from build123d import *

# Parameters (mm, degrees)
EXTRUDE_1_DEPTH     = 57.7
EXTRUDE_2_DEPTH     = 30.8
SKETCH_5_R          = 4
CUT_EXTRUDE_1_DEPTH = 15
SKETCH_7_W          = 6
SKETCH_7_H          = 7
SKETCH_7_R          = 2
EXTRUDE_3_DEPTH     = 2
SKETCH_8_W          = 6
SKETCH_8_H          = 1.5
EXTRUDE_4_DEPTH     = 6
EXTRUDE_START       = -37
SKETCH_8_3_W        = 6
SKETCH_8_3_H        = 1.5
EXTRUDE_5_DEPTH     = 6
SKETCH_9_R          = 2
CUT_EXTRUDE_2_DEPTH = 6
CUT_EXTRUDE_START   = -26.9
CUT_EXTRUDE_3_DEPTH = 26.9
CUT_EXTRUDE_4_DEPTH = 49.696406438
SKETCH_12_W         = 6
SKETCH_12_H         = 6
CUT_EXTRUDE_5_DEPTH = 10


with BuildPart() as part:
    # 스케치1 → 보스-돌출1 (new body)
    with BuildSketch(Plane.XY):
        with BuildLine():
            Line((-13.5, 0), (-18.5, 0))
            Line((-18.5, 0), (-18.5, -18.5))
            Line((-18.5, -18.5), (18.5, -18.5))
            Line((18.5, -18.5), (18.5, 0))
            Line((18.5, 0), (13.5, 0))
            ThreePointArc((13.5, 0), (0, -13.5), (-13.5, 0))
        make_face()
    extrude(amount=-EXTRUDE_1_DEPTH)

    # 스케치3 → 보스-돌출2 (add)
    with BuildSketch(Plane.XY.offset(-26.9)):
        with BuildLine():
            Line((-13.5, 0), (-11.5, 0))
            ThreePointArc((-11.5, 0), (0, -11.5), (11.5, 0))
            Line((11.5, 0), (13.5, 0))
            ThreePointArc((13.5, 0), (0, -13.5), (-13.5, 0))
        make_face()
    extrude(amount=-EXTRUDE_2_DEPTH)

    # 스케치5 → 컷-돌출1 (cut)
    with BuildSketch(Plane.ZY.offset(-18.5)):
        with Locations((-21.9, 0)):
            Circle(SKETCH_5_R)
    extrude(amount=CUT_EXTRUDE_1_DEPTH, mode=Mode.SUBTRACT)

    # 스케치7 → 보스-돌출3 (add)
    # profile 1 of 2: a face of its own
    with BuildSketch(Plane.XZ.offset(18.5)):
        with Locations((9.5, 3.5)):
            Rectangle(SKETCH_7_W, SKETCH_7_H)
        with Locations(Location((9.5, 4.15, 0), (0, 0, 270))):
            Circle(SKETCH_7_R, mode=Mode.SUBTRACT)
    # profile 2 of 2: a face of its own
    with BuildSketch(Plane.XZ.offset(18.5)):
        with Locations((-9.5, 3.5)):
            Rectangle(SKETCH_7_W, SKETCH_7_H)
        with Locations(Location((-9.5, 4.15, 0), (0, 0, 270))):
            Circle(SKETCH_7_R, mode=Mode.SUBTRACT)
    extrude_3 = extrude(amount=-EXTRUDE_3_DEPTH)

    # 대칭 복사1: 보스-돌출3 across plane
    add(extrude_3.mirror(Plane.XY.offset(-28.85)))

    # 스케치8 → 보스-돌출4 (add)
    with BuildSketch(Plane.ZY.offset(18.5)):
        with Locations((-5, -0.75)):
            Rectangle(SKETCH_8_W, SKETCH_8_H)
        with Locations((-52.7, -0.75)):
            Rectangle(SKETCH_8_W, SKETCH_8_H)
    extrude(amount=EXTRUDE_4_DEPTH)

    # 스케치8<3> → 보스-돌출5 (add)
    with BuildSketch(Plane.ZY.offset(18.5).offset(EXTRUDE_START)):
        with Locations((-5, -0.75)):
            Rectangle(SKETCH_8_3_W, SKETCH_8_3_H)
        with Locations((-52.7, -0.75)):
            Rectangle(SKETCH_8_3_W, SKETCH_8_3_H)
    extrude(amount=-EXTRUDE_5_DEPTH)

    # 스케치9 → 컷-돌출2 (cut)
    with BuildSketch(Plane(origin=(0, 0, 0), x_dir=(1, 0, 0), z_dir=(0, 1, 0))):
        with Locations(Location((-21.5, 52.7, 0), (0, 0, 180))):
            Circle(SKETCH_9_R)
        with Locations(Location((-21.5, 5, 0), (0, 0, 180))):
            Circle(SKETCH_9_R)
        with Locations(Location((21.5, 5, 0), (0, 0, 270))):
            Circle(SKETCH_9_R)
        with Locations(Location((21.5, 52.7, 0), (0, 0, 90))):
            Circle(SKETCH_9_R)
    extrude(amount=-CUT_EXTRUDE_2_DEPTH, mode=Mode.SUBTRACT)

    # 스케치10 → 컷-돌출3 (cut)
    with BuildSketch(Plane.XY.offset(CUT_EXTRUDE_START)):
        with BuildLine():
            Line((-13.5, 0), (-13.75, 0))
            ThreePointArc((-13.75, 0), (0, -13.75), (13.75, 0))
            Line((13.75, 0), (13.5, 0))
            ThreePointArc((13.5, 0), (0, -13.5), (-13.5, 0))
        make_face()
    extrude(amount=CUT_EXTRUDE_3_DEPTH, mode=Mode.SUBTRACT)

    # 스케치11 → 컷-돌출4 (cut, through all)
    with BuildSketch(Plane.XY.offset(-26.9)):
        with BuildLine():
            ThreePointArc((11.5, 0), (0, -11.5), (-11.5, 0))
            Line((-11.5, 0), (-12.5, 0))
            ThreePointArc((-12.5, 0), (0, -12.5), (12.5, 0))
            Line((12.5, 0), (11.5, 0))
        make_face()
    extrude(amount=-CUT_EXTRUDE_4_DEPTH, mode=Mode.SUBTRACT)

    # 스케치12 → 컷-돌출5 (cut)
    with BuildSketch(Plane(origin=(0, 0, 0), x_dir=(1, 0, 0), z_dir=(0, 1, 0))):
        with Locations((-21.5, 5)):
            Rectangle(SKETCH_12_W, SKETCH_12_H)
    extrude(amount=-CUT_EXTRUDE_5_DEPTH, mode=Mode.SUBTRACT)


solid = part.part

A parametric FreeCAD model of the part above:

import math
import FreeCAD as App
import Part
import Sketcher
Q = App.Units.Quantity


def add_polygon(sketch, points):
    """Adds a closed chain of lines whose ends are joined by coincident constraints."""
    first, n = sketch.GeometryCount, len(points)
    for a, b in zip(points, points[1:] + points[:1]):
        sketch.addGeometry(Part.LineSegment(App.Vector(*a, 0), App.Vector(*b, 0)), False)
    for i in range(n):
        sketch.addConstraint(Sketcher.Constraint("Coincident", first + i, 2, first + (i + 1) % n, 1))

doc = App.newDocument("Part")
body = doc.addObject("PartDesign::Body", "Body")

# Sketch on XY plane
sketch1 = doc.addObject("Sketcher::SketchObject", "Sketch")
body.addObject(sketch1)
sketch1.AttachmentSupport = (doc.XY_Plane, [""])
sketch1.MapMode = "FlatFace"
sketch1.addGeometry([
    Part.LineSegment(App.Vector(-14, 0, 0), App.Vector(-18, 0, 0)),  # 0
    Part.LineSegment(App.Vector(-18, 0, 0), App.Vector(-18, -18, 0)),  # 1
    Part.LineSegment(App.Vector(-18, -18, 0), App.Vector(18, -18, 0)),  # 2
    Part.LineSegment(App.Vector(18, -18, 0), App.Vector(18, 0, 0)),  # 3
    Part.LineSegment(App.Vector(18, 0, 0), App.Vector(14, 0, 0)),  # 4
    Part.ArcOfCircle(Part.Circle(App.Vector(0, 0, 0), App.Vector(0, 0, 1), 14), math.radians(180), math.radians(360)),  # 5
], False)
sketch1.addConstraint([
    Sketcher.Constraint("Coincident", 0, 2, 1, 1),
    Sketcher.Constraint("Coincident", 1, 2, 2, 1),
    Sketcher.Constraint("Coincident", 2, 2, 3, 1),
    Sketcher.Constraint("Coincident", 3, 2, 4, 1),
    Sketcher.Constraint("Coincident", 4, 2, 5, 2),
    Sketcher.Constraint("Coincident", 5, 1, 0, 1),
    Sketcher.Constraint("Horizontal", 0),
    Sketcher.Constraint("Vertical", 1),
    Sketcher.Constraint("Horizontal", 2),
    Sketcher.Constraint("Vertical", 3),
    Sketcher.Constraint("Horizontal", 4),
    Sketcher.Constraint("Coincident", 5, 3, -1, 1),
    Sketcher.Constraint("Symmetric", 0, 2, 3, 2, -1, 1),
    Sketcher.Constraint("PointOnObject", 0, 2, -1),
    Sketcher.Constraint("Radius", 5, Q("13.5 mm")),
    Sketcher.Constraint("DistanceX", 0, 2, 0, 1, Q("5 mm")),
    Sketcher.Constraint("DistanceY", 1, 2, 1, 1, Q("18.5 mm")),
])
pad1 = doc.addObject("PartDesign::Pad", "Pad")
body.addObject(pad1)
pad1.Profile = sketch1
pad1.Length = 57.7
pad1.Reversed = True

# Sketch on XY plane
sketch2 = doc.addObject("Sketcher::SketchObject", "Sketch001")
body.addObject(sketch2)
sketch2.AttachmentSupport = (doc.XY_Plane, [""])
sketch2.MapMode = "FlatFace"
sketch2.AttachmentOffset = App.Placement(App.Vector(0, 0, -26.9), App.Rotation())
sketch2.addGeometry([
    Part.LineSegment(App.Vector(-11.5, 0, 0), App.Vector(-13.5, 0, 0)),
    Part.ArcOfCircle(Part.Circle(App.Vector(0, 0, 0), App.Vector(0, 0, 1), 13.5), math.radians(180), math.radians(360)),
    Part.LineSegment(App.Vector(13.5, 0, 0), App.Vector(11.5, 0, 0)),
    Part.ArcOfCircle(Part.Circle(App.Vector(0, 0, 0), App.Vector(0, 0, 1), 11.5), math.radians(180), math.radians(360)),
], False)
sketch2.addConstraint([
    Sketcher.Constraint("Coincident", 0, 2, 1, 1),
    Sketcher.Constraint("Coincident", 1, 2, 2, 1),
    Sketcher.Constraint("Coincident", 2, 2, 3, 2),
    Sketcher.Constraint("Coincident", 3, 1, 0, 1),
    Sketcher.Constraint("Horizontal", 0),
    Sketcher.Constraint("Horizontal", 2),
    Sketcher.Constraint("Coincident", 1, 3, -1, 1),
    Sketcher.Constraint("Coincident", 3, 3, -1, 1),
    Sketcher.Constraint("PointOnObject", 0, 2, -1),
    Sketcher.Constraint("PointOnObject", 1, 2, -1),
    Sketcher.Constraint("Radius", 1, Q("13.5 mm")),
    Sketcher.Constraint("Radius", 3, Q("11.5 mm")),
])
pad2 = doc.addObject("PartDesign::Pad", "Pad001")
body.addObject(pad2)
pad2.Profile = sketch2
pad2.Length = 30.8
pad2.Reversed = True

# Sketch on YZ plane
sketch3 = doc.addObject("Sketcher::SketchObject", "Sketch002")
body.addObject(sketch3)
sketch3.AttachmentSupport = (doc.YZ_Plane, [""])
sketch3.MapMode = "FlatFace"
sketch3.AttachmentOffset = App.Placement(App.Vector(0, 0, 18.5), App.Rotation())
sketch3.addGeometry(Part.Circle(App.Vector(0, -21.9, 0), App.Vector(0, 0, 1), 4), False)
sketch3.addConstraint([
    Sketcher.Constraint("PointOnObject", 0, 3, -2),
    Sketcher.Constraint("Diameter", 0, Q("8 mm")),
    Sketcher.Constraint("DistanceY", 0, 3, -1, 1, Q("21.9 mm")),
])
pocket1 = doc.addObject("PartDesign::Pocket", "Pocket")
body.addObject(pocket1)
pocket1.Profile = sketch3
pocket1.Length = 15

# Sketch on XZ plane
sketch4 = doc.addObject("Sketcher::SketchObject", "Sketch003")
body.addObject(sketch4)
sketch4.AttachmentSupport = (doc.XZ_Plane, [""])
sketch4.MapMode = "FlatFace"
sketch4.AttachmentOffset = App.Placement(App.Vector(0, 0, 18.5), App.Rotation())
add_polygon(sketch4, [(6.5, 7), (6.5, 0), (12.5, 0), (12.5, 7)])  # lines 0-3
sketch4.addGeometry(Part.Circle(App.Vector(9.5, 4.2, 0), App.Vector(0, 0, 1), 2), False)  # 4
add_polygon(sketch4, [(-12.5, 7), (-12.5, 0), (-6.5, 0), (-6.5, 7)])  # lines 5-8
sketch4.addGeometry(Part.Circle(App.Vector(-9.5, 4.2, 0), App.Vector(0, 0, 1), 2), False)  # 9
sketch4.addConstraint([
    Sketcher.Constraint("Vertical", 0),
    Sketcher.Constraint("Horizontal", 1),
    Sketcher.Constraint("Vertical", 2),
    Sketcher.Constraint("Horizontal", 3),
    Sketcher.Constraint("Vertical", 5),
    Sketcher.Constraint("Horizontal", 6),
    Sketcher.Constraint("Vertical", 7),
    Sketcher.Constraint("Horizontal", 8),
    Sketcher.Constraint("Equal", 4, 9),
    Sketcher.Constraint("Symmetric", 1, 2, 5, 2, -1, 1),
    Sketcher.Constraint("Symmetric", 4, 3, 9, 3, -2),
    Sketcher.Constraint("Symmetric", 0, 2, 6, 2, -2),
    Sketcher.Constraint("Horizontal", 3, 2, 7, 2),
    Sketcher.Constraint("Diameter", 4, Q("4 mm")),
    Sketcher.Constraint("DistanceX", 1, 1, 1, 2, Q("6 mm")),
    Sketcher.Constraint("DistanceY", 0, 2, 0, 1, Q("7 mm")),
    Sketcher.Constraint("DistanceX", 9, 3, 4, 3, Q("19 mm")),
    Sketcher.Constraint("DistanceX", 0, 2, 4, 3, Q("3 mm")),
    Sketcher.Constraint("DistanceY", -1, 1, 4, 3, Q("4.15 mm")),
])
pad3 = doc.addObject("PartDesign::Pad", "Pad002")
body.addObject(pad3)
pad3.Profile = sketch4
pad3.Length = 2
pad3.Reversed = True
doc.recompute()

datumplane = doc.addObject("PartDesign::Plane", "DatumPlane")
body.addObject(datumplane)
datumplane.AttachmentSupport = (doc.XY_Plane, [""])
datumplane.MapMode = "FlatFace"
datumplane.AttachmentOffset = App.Placement(App.Vector(0, 0, -28.85), App.Rotation())
mirrored = doc.addObject("PartDesign::Mirrored", "Mirrored")
body.addObject(mirrored)
mirrored.Originals = [pad3]
mirrored.MirrorPlane = (datumplane, [""])
body.Tip = mirrored

# Sketch on YZ plane
sketch5 = doc.addObject("Sketcher::SketchObject", "Sketch004")
body.addObject(sketch5)
sketch5.AttachmentSupport = (doc.YZ_Plane, [""])
sketch5.MapMode = "FlatFace"
sketch5.AttachmentOffset = App.Placement(App.Vector(0, 0, -18.5), App.Rotation())
add_polygon(sketch5, [(0, -8), (-1.5, -8), (-1.5, -2), (0, -2)])  # lines 0-3
add_polygon(sketch5, [(0, -55.7), (-1.5, -55.7), (-1.5, -49.7), (0, -49.7)])  # lines 4-7
sketch5.addConstraint([
    Sketcher.Constraint("Horizontal", 0),
    Sketcher.Constraint("Vertical", 1),
    Sketcher.Constraint("Horizontal", 2),
    Sketcher.Constraint("Vertical", 3),
    Sketcher.Constraint("Horizontal", 4),
    Sketcher.Constraint("Vertical", 5),
    Sketcher.Constraint("Horizontal", 6),
    Sketcher.Constraint("Vertical", 7),
    Sketcher.Constraint("PointOnObject", 2, 2, -2),
    Sketcher.Constraint("PointOnObject", 6, 2, -2),
    Sketcher.Constraint("Vertical", 1, 2, 4, 2),
    Sketcher.Constraint("Equal", 3, 5),
    Sketcher.Constraint("DistanceY", 1, 1, 1, 2, Q("6 mm")),
    Sketcher.Constraint("DistanceX", 0, 2, 0, 1, Q("1.5 mm")),
    Sketcher.Constraint("DistanceY", 0, 2, -1, 1, Q("8 mm")),
    Sketcher.Constraint("DistanceY", 4, 2, -1, 1, Q("55.7 mm")),
])
pad4 = doc.addObject("PartDesign::Pad", "Pad003")
body.addObject(pad4)
pad4.Profile = sketch5
pad4.Length = 6
pad4.Reversed = True

# Sketch on YZ plane
sketch6 = doc.addObject("Sketcher::SketchObject", "Sketch005")
body.addObject(sketch6)
sketch6.AttachmentSupport = (doc.YZ_Plane, [""])
sketch6.MapMode = "FlatFace"
sketch6.AttachmentOffset = App.Placement(App.Vector(0, 0, 18.5), App.Rotation())
add_polygon(sketch6, [(0, -8), (-1.5, -8), (-1.5, -2), (0, -2)])  # lines 0-3
add_polygon(sketch6, [(0, -55.7), (-1.5, -55.7), (-1.5, -49.7), (0, -49.7)])  # lines 4-7
sketch6.addConstraint([
    Sketcher.Constraint("Horizontal", 0),
    Sketcher.Constraint("Vertical", 1),
    Sketcher.Constraint("Horizontal", 2),
    Sketcher.Constraint("Vertical", 3),
    Sketcher.Constraint("Horizontal", 4),
    Sketcher.Constraint("Vertical", 5),
    Sketcher.Constraint("Horizontal", 6),
    Sketcher.Constraint("Vertical", 7),
    Sketcher.Constraint("PointOnObject", 2, 2, -2),
    Sketcher.Constraint("PointOnObject", 6, 2, -2),
    Sketcher.Constraint("Vertical", 1, 2, 4, 2),
    Sketcher.Constraint("Equal", 3, 5),
    Sketcher.Constraint("DistanceY", 1, 1, 1, 2, Q("6 mm")),
    Sketcher.Constraint("DistanceX", 0, 2, 0, 1, Q("1.5 mm")),
    Sketcher.Constraint("DistanceY", 0, 2, -1, 1, Q("8 mm")),
    Sketcher.Constraint("DistanceY", 4, 2, -1, 1, Q("55.7 mm")),
])
pad5 = doc.addObject("PartDesign::Pad", "Pad004")
body.addObject(pad5)
pad5.Profile = sketch6
pad5.Length = 6

# Sketch on XZ plane
sketch7 = doc.addObject("Sketcher::SketchObject", "Sketch006")
body.addObject(sketch7)
sketch7.AttachmentSupport = (doc.XZ_Plane, [""])
sketch7.MapMode = "FlatFace"
sketch7.addGeometry([
    Part.Circle(App.Vector(-21.5, -52.7, 0), App.Vector(0, 0, 1), 2),
    Part.Circle(App.Vector(-21.5, -5, 0), App.Vector(0, 0, 1), 2),
    Part.Circle(App.Vector(21.5, -5, 0), App.Vector(0, 0, 1), 2),
    Part.Circle(App.Vector(21.5, -52.7, 0), App.Vector(0, 0, 1), 2),
], False)
sketch7.addConstraint([
    Sketcher.Constraint("Equal", 0, 1),
    Sketcher.Constraint("Equal", 1, 2),
    Sketcher.Constraint("Equal", 2, 3),
    Sketcher.Constraint("Symmetric", 1, 3, 2, 3, -2),
    Sketcher.Constraint("Symmetric", 0, 3, 3, 3, -2),
    Sketcher.Constraint("Vertical", 0, 3, 1, 3),
    Sketcher.Constraint("Diameter", 0, Q("4 mm")),
    Sketcher.Constraint("DistanceY", 1, 3, -1, 1, Q("5 mm")),
    Sketcher.Constraint("DistanceX", 1, 3, 2, 3, Q("43 mm")),
    Sketcher.Constraint("DistanceY", 0, 3, -1, 1, Q("52.7 mm")),
])
pocket2 = doc.addObject("PartDesign::Pocket", "Pocket001")
body.addObject(pocket2)
pocket2.Profile = sketch7
pocket2.Length = 6
pocket2.Reversed = True

# Sketch on XY plane
sketch8 = doc.addObject("Sketcher::SketchObject", "Sketch007")
body.addObject(sketch8)
sketch8.AttachmentSupport = (doc.XY_Plane, [""])
sketch8.MapMode = "FlatFace"
sketch8.AttachmentOffset = App.Placement(App.Vector(0, 0, -26.9), App.Rotation())
sketch8.addGeometry([
    Part.LineSegment(App.Vector(-13.5, 0, 0), App.Vector(-13.75, 0, 0)),
    Part.ArcOfCircle(Part.Circle(App.Vector(0, 0, 0), App.Vector(0, 0, 1), 13.75), math.radians(180), math.radians(360)),
    Part.LineSegment(App.Vector(13.75, 0, 0), App.Vector(13.5, 0, 0)),
    Part.ArcOfCircle(Part.Circle(App.Vector(0, 0, 0), App.Vector(0, 0, 1), 13.5), math.radians(180), math.radians(360)),
], False)
sketch8.addConstraint([
    Sketcher.Constraint("Coincident", 0, 2, 1, 1),
    Sketcher.Constraint("Coincident", 1, 2, 2, 1),
    Sketcher.Constraint("Coincident", 2, 2, 3, 2),
    Sketcher.Constraint("Coincident", 3, 1, 0, 1),
    Sketcher.Constraint("Horizontal", 0),
    Sketcher.Constraint("Horizontal", 2),
    Sketcher.Constraint("Coincident", 1, 3, -1, 1),
    Sketcher.Constraint("Coincident", 3, 3, -1, 1),
    Sketcher.Constraint("PointOnObject", 0, 2, -1),
    Sketcher.Constraint("PointOnObject", 1, 2, -1),
    Sketcher.Constraint("Radius", 3, Q("13.5 mm")),
    Sketcher.Constraint("Radius", 1, Q("13.75 mm")),
])
pocket3 = doc.addObject("PartDesign::Pocket", "Pocket002")
body.addObject(pocket3)
pocket3.Profile = sketch8
pocket3.Length = 26.9
pocket3.Reversed = True

# Sketch on XY plane
sketch9 = doc.addObject("Sketcher::SketchObject", "Sketch008")
body.addObject(sketch9)
sketch9.AttachmentSupport = (doc.XY_Plane, [""])
sketch9.MapMode = "FlatFace"
sketch9.AttachmentOffset = App.Placement(App.Vector(0, 0, -26.9), App.Rotation())
sketch9.addGeometry([
    Part.ArcOfCircle(Part.Circle(App.Vector(0, 0, 0), App.Vector(0, 0, 1), 11.5), math.radians(180), math.radians(360)),
    Part.LineSegment(App.Vector(-11.5, 0, 0), App.Vector(-12.5, 0, 0)),
    Part.ArcOfCircle(Part.Circle(App.Vector(0, 0, 0), App.Vector(0, 0, 1), 12.5), math.radians(180), math.radians(360)),
    Part.LineSegment(App.Vector(12.5, 0, 0), App.Vector(11.5, 0, 0)),
], False)
sketch9.addConstraint([
    Sketcher.Constraint("Coincident", 0, 1, 1, 1),
    Sketcher.Constraint("Coincident", 1, 2, 2, 1),
    Sketcher.Constraint("Coincident", 2, 2, 3, 1),
    Sketcher.Constraint("Coincident", 3, 2, 0, 2),
    Sketcher.Constraint("Horizontal", 1),
    Sketcher.Constraint("Horizontal", 3),
    Sketcher.Constraint("Coincident", 0, 3, -1, 1),
    Sketcher.Constraint("Coincident", 2, 3, -1, 1),
    Sketcher.Constraint("PointOnObject", 0, 1, -1),
    Sketcher.Constraint("PointOnObject", 2, 2, -1),
    Sketcher.Constraint("Radius", 0, Q("11.5 mm")),
    Sketcher.Constraint("Radius", 2, Q("12.5 mm")),
])
pocket4 = doc.addObject("PartDesign::Pocket", "Pocket003")
body.addObject(pocket4)
pocket4.Profile = sketch9
pocket4.Type = "ThroughAll"

# Sketch on XZ plane
sketch10 = doc.addObject("Sketcher::SketchObject", "Sketch009")
body.addObject(sketch10)
sketch10.AttachmentSupport = (doc.XZ_Plane, [""])
sketch10.MapMode = "FlatFace"
add_polygon(sketch10, [(-24, -8), (-24, -2), (-18, -2), (-18, -8)])  # lines 0-3
sketch10.addConstraint([
    Sketcher.Constraint("Vertical", 0),
    Sketcher.Constraint("Horizontal", 1),
    Sketcher.Constraint("Vertical", 2),
    Sketcher.Constraint("Horizontal", 3),
    Sketcher.Constraint("Equal", 3, 0),
    Sketcher.Constraint("DistanceX", 1, 1, 1, 2, Q("6 mm")),
    Sketcher.Constraint("DistanceY", 0, 2, -1, 1, Q("2 mm")),
    Sketcher.Constraint("DistanceX", 0, 2, -1, 1, Q("24.5 mm")),
])
pocket5 = doc.addObject("PartDesign::Pocket", "Pocket004")
body.addObject(pocket5)
pocket5.Profile = sketch10
pocket5.Length = 10
pocket5.Reversed = True

doc.recompute()
